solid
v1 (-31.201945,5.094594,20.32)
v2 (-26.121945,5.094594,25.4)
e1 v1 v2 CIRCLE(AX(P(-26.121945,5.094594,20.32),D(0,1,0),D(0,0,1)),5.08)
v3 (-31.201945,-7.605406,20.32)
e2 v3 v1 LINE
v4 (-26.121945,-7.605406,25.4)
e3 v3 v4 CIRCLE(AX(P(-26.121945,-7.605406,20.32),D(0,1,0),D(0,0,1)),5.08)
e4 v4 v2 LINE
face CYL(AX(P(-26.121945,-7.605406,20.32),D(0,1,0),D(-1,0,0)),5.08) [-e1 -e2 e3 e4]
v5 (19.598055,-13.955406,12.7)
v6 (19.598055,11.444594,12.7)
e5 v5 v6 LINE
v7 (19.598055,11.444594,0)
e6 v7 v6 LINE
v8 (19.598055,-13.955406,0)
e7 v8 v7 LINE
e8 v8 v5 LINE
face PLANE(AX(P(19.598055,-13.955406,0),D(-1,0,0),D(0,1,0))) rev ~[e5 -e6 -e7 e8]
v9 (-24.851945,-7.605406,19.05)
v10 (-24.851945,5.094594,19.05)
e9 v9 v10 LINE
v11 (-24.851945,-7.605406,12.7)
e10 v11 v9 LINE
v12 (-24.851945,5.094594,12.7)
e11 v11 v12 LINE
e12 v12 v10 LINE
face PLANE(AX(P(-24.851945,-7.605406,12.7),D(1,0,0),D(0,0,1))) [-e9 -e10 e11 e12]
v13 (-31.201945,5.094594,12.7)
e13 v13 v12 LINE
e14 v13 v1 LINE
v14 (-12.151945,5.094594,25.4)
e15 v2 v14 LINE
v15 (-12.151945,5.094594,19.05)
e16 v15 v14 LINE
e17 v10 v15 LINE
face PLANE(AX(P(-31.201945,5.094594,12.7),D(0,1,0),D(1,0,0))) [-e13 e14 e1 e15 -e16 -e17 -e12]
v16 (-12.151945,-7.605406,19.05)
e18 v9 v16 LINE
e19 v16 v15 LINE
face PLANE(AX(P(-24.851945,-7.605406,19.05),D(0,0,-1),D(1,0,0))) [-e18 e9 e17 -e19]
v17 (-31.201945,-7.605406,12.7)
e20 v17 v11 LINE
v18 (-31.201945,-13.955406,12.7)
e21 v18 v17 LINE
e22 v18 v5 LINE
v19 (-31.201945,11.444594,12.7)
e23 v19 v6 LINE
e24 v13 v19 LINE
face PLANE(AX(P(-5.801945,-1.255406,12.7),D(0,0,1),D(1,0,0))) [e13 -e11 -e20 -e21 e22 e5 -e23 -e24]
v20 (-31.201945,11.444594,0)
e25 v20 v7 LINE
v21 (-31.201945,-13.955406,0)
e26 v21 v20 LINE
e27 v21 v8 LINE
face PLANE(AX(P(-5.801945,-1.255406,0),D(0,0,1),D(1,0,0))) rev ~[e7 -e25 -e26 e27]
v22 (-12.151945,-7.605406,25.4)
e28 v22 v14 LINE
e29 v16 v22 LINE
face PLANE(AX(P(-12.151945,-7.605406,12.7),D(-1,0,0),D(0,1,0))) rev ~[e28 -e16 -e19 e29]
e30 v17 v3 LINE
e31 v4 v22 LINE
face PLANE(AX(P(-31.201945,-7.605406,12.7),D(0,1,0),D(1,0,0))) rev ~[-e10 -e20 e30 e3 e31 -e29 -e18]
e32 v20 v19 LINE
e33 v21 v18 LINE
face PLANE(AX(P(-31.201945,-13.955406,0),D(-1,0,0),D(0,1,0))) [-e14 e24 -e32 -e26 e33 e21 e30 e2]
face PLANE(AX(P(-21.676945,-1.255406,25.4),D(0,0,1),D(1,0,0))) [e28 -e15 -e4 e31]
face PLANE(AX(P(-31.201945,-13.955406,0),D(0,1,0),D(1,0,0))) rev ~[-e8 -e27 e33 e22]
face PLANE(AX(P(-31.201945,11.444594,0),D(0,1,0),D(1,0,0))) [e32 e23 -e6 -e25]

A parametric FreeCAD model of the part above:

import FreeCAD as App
import Part
import Sketcher

V = App.Vector
Q = App.Units.Quantity


def edges_at(feature, points):
    """Names of the edges that pass closest to the given points."""
    edges = feature.Shape.Edges
    near = lambda p: min(range(len(edges)), key=lambda i: edges[i].distToShape(Part.Vertex(*p))[0])
    return sorted({f"Edge{near(p) + 1}" for p in points})

doc = App.newDocument("Part")
body = doc.addObject("PartDesign::Body", "Body")

# Sketch on XY plane
sketch1 = doc.addObject("Sketcher::SketchObject", "Sketch")
body.addObject(sketch1)
sketch1.AttachmentSupport = (doc.XY_Plane, [""])
sketch1.MapMode = "FlatFace"
sketch1.addGeometry(Part.LineSegment(V(-31, 11, 0), V(-31, -14, 0)), False)
sketch1.addGeometry(Part.LineSegment(V(-31, -14, 0), V(20, -14, 0)), False)
sketch1.addGeometry(Part.LineSegment(V(20, -14, 0), V(20, 11, 0)), False)
sketch1.addGeometry(Part.LineSegment(V(20, 11, 0), V(-31, 11, 0)), False)
sketch1.addConstraint(Sketcher.Constraint("Coincident", 0, 2, 1, 1))
sketch1.addConstraint(Sketcher.Constraint("Coincident", 1, 2, 2, 1))
sketch1.addConstraint(Sketcher.Constraint("Coincident", 2, 2, 3, 1))
sketch1.addConstraint(Sketcher.Constraint("Coincident", 3, 2, 0, 1))
sketch1.addConstraint(Sketcher.Constraint("Vertical", 0))
sketch1.addConstraint(Sketcher.Constraint("Horizontal", 1))
sketch1.addConstraint(Sketcher.Constraint("Vertical", 2))
sketch1.addConstraint(Sketcher.Constraint("Horizontal", 3))
sketch1.addConstraint(Sketcher.Constraint("DistanceX", 1, 1, 1, 2, Q("2 in")))
sketch1.addConstraint(Sketcher.Constraint("DistanceY", 0, 2, 0, 1, Q("1 in")))
sketch1.addConstraint(Sketcher.Constraint("DistanceX", 0, 2, -1, 1, 31.201945))
sketch1.addConstraint(Sketcher.Constraint("DistanceY", 0, 2, -1, 1, 13.955406))
pad1 = doc.addObject("PartDesign::Pad", "Pad")
body.addObject(pad1)
pad1.Profile = sketch1
pad1.Length = Q("0.5 in")

# Sketch on XY plane
sketch2 = doc.addObject("Sketcher::SketchObject", "Sketch001")
body.addObject(sketch2)
sketch2.AttachmentSupport = (doc.XY_Plane, [""])
sketch2.MapMode = "FlatFace"
sketch2.AttachmentOffset = App.Placement(V(0, 0, 0.5 * 25.4), App.Rotation())
sketch2.addGeometry(Part.LineSegment(V(-31, 5, 0), V(-31, -8, 0)), False)
sketch2.addGeometry(Part.LineSegment(V(-31, -8, 0), V(-12, -8, 0)), False)
sketch2.addGeometry(Part.LineSegment(V(-12, -8, 0), V(-12, 5, 0)), False)
sketch2.addGeometry(Part.LineSegment(V(-12, 5, 0), V(-31, 5, 0)), False)
sketch2.addConstraint(Sketcher.Constraint("Coincident", 0, 2, 1, 1))
sketch2.addConstraint(Sketcher.Constraint("Coincident", 1, 2, 2, 1))
sketch2.addConstraint(Sketcher.Constraint("Coincident", 2, 2, 3, 1))
sketch2.addConstraint(Sketcher.Constraint("Coincident", 3, 2, 0, 1))
sketch2.addConstraint(Sketcher.Constraint("Vertical", 0))
sketch2.addConstraint(Sketcher.Constraint("Horizontal", 1))
sketch2.addConstraint(Sketcher.Constraint("Vertical", 2))
sketch2.addConstraint(Sketcher.Constraint("Horizontal", 3))
sketch2.addConstraint(Sketcher.Constraint("DistanceY", 0, 2, 0, 1, Q("0.5 in")))
sketch2.addConstraint(Sketcher.Constraint("DistanceX", 1, 1, 1, 2, Q("0.75 in")))
sketch2.addConstraint(Sketcher.Constraint("DistanceX", 0, 2, -1, 1, 31.201945))
sketch2.addConstraint(Sketcher.Constraint("DistanceY", 0, 2, -1, 1, 7.605406))
pad2 = doc.addObject("PartDesign::Pad", "Pad001")
body.addObject(pad2)
pad2.Profile = sketch2
pad2.Length = Q("0.5 in")

# Sketch on XZ plane
sketch3 = doc.addObject("Sketcher::SketchObject", "Sketch002")
body.addObject(sketch3)
sketch3.AttachmentSupport = (doc.XZ_Plane, [""])
sketch3.MapMode = "FlatFace"
sketch3.AttachmentOffset = App.Placement(V(0, 0, 7.605406), App.Rotation())
sketch3.addGeometry(Part.LineSegment(V(-25, 19, 0), V(-25, 13, 0)), False)
sketch3.addGeometry(Part.LineSegment(V(-25, 13, 0), V(-12, 13, 0)), False)
sketch3.addGeometry(Part.LineSegment(V(-12, 13, 0), V(-12, 19, 0)), False)
sketch3.addGeometry(Part.LineSegment(V(-12, 19, 0), V(-25, 19, 0)), False)
sketch3.addConstraint(Sketcher.Constraint("Coincident", 0, 2, 1, 1))
sketch3.addConstraint(Sketcher.Constraint("Coincident", 1, 2, 2, 1))
sketch3.addConstraint(Sketcher.Constraint("Coincident", 2, 2, 3, 1))
sketch3.addConstraint(Sketcher.Constraint("Coincident", 3, 2, 0, 1))
sketch3.addConstraint(Sketcher.Constraint("Vertical", 0))
sketch3.addConstraint(Sketcher.Constraint("Horizontal", 1))
sketch3.addConstraint(Sketcher.Constraint("Vertical", 2))
sketch3.addConstraint(Sketcher.Constraint("Horizontal", 3))
sketch3.addConstraint(Sketcher.Constraint("DistanceX", 1, 1, 1, 2, Q("0.5 in")))
sketch3.addConstraint(Sketcher.Constraint("DistanceY", 0, 2, 0, 1, Q("0.25 in")))
sketch3.addConstraint(Sketcher.Constraint("DistanceY", -1, 1, 0, 2, Q("0.5 in")))
sketch3.addConstraint(Sketcher.Constraint("DistanceX", 0, 2, -1, 1, 24.851945))
pocket1 = doc.addObject("PartDesign::Pocket", "Pocket")
body.addObject(pocket1)
pocket1.Profile = sketch3
pocket1.Type = "ThroughAll"
doc.recompute()

fillet = doc.addObject("PartDesign::Fillet", "Fillet")
body.addObject(fillet)
fillet.Base = (pocket1, edges_at(pocket1, [(-31.202, -1.255, 25.4)]))
fillet.Radius = Q("0.2 in")

doc.recompute()
